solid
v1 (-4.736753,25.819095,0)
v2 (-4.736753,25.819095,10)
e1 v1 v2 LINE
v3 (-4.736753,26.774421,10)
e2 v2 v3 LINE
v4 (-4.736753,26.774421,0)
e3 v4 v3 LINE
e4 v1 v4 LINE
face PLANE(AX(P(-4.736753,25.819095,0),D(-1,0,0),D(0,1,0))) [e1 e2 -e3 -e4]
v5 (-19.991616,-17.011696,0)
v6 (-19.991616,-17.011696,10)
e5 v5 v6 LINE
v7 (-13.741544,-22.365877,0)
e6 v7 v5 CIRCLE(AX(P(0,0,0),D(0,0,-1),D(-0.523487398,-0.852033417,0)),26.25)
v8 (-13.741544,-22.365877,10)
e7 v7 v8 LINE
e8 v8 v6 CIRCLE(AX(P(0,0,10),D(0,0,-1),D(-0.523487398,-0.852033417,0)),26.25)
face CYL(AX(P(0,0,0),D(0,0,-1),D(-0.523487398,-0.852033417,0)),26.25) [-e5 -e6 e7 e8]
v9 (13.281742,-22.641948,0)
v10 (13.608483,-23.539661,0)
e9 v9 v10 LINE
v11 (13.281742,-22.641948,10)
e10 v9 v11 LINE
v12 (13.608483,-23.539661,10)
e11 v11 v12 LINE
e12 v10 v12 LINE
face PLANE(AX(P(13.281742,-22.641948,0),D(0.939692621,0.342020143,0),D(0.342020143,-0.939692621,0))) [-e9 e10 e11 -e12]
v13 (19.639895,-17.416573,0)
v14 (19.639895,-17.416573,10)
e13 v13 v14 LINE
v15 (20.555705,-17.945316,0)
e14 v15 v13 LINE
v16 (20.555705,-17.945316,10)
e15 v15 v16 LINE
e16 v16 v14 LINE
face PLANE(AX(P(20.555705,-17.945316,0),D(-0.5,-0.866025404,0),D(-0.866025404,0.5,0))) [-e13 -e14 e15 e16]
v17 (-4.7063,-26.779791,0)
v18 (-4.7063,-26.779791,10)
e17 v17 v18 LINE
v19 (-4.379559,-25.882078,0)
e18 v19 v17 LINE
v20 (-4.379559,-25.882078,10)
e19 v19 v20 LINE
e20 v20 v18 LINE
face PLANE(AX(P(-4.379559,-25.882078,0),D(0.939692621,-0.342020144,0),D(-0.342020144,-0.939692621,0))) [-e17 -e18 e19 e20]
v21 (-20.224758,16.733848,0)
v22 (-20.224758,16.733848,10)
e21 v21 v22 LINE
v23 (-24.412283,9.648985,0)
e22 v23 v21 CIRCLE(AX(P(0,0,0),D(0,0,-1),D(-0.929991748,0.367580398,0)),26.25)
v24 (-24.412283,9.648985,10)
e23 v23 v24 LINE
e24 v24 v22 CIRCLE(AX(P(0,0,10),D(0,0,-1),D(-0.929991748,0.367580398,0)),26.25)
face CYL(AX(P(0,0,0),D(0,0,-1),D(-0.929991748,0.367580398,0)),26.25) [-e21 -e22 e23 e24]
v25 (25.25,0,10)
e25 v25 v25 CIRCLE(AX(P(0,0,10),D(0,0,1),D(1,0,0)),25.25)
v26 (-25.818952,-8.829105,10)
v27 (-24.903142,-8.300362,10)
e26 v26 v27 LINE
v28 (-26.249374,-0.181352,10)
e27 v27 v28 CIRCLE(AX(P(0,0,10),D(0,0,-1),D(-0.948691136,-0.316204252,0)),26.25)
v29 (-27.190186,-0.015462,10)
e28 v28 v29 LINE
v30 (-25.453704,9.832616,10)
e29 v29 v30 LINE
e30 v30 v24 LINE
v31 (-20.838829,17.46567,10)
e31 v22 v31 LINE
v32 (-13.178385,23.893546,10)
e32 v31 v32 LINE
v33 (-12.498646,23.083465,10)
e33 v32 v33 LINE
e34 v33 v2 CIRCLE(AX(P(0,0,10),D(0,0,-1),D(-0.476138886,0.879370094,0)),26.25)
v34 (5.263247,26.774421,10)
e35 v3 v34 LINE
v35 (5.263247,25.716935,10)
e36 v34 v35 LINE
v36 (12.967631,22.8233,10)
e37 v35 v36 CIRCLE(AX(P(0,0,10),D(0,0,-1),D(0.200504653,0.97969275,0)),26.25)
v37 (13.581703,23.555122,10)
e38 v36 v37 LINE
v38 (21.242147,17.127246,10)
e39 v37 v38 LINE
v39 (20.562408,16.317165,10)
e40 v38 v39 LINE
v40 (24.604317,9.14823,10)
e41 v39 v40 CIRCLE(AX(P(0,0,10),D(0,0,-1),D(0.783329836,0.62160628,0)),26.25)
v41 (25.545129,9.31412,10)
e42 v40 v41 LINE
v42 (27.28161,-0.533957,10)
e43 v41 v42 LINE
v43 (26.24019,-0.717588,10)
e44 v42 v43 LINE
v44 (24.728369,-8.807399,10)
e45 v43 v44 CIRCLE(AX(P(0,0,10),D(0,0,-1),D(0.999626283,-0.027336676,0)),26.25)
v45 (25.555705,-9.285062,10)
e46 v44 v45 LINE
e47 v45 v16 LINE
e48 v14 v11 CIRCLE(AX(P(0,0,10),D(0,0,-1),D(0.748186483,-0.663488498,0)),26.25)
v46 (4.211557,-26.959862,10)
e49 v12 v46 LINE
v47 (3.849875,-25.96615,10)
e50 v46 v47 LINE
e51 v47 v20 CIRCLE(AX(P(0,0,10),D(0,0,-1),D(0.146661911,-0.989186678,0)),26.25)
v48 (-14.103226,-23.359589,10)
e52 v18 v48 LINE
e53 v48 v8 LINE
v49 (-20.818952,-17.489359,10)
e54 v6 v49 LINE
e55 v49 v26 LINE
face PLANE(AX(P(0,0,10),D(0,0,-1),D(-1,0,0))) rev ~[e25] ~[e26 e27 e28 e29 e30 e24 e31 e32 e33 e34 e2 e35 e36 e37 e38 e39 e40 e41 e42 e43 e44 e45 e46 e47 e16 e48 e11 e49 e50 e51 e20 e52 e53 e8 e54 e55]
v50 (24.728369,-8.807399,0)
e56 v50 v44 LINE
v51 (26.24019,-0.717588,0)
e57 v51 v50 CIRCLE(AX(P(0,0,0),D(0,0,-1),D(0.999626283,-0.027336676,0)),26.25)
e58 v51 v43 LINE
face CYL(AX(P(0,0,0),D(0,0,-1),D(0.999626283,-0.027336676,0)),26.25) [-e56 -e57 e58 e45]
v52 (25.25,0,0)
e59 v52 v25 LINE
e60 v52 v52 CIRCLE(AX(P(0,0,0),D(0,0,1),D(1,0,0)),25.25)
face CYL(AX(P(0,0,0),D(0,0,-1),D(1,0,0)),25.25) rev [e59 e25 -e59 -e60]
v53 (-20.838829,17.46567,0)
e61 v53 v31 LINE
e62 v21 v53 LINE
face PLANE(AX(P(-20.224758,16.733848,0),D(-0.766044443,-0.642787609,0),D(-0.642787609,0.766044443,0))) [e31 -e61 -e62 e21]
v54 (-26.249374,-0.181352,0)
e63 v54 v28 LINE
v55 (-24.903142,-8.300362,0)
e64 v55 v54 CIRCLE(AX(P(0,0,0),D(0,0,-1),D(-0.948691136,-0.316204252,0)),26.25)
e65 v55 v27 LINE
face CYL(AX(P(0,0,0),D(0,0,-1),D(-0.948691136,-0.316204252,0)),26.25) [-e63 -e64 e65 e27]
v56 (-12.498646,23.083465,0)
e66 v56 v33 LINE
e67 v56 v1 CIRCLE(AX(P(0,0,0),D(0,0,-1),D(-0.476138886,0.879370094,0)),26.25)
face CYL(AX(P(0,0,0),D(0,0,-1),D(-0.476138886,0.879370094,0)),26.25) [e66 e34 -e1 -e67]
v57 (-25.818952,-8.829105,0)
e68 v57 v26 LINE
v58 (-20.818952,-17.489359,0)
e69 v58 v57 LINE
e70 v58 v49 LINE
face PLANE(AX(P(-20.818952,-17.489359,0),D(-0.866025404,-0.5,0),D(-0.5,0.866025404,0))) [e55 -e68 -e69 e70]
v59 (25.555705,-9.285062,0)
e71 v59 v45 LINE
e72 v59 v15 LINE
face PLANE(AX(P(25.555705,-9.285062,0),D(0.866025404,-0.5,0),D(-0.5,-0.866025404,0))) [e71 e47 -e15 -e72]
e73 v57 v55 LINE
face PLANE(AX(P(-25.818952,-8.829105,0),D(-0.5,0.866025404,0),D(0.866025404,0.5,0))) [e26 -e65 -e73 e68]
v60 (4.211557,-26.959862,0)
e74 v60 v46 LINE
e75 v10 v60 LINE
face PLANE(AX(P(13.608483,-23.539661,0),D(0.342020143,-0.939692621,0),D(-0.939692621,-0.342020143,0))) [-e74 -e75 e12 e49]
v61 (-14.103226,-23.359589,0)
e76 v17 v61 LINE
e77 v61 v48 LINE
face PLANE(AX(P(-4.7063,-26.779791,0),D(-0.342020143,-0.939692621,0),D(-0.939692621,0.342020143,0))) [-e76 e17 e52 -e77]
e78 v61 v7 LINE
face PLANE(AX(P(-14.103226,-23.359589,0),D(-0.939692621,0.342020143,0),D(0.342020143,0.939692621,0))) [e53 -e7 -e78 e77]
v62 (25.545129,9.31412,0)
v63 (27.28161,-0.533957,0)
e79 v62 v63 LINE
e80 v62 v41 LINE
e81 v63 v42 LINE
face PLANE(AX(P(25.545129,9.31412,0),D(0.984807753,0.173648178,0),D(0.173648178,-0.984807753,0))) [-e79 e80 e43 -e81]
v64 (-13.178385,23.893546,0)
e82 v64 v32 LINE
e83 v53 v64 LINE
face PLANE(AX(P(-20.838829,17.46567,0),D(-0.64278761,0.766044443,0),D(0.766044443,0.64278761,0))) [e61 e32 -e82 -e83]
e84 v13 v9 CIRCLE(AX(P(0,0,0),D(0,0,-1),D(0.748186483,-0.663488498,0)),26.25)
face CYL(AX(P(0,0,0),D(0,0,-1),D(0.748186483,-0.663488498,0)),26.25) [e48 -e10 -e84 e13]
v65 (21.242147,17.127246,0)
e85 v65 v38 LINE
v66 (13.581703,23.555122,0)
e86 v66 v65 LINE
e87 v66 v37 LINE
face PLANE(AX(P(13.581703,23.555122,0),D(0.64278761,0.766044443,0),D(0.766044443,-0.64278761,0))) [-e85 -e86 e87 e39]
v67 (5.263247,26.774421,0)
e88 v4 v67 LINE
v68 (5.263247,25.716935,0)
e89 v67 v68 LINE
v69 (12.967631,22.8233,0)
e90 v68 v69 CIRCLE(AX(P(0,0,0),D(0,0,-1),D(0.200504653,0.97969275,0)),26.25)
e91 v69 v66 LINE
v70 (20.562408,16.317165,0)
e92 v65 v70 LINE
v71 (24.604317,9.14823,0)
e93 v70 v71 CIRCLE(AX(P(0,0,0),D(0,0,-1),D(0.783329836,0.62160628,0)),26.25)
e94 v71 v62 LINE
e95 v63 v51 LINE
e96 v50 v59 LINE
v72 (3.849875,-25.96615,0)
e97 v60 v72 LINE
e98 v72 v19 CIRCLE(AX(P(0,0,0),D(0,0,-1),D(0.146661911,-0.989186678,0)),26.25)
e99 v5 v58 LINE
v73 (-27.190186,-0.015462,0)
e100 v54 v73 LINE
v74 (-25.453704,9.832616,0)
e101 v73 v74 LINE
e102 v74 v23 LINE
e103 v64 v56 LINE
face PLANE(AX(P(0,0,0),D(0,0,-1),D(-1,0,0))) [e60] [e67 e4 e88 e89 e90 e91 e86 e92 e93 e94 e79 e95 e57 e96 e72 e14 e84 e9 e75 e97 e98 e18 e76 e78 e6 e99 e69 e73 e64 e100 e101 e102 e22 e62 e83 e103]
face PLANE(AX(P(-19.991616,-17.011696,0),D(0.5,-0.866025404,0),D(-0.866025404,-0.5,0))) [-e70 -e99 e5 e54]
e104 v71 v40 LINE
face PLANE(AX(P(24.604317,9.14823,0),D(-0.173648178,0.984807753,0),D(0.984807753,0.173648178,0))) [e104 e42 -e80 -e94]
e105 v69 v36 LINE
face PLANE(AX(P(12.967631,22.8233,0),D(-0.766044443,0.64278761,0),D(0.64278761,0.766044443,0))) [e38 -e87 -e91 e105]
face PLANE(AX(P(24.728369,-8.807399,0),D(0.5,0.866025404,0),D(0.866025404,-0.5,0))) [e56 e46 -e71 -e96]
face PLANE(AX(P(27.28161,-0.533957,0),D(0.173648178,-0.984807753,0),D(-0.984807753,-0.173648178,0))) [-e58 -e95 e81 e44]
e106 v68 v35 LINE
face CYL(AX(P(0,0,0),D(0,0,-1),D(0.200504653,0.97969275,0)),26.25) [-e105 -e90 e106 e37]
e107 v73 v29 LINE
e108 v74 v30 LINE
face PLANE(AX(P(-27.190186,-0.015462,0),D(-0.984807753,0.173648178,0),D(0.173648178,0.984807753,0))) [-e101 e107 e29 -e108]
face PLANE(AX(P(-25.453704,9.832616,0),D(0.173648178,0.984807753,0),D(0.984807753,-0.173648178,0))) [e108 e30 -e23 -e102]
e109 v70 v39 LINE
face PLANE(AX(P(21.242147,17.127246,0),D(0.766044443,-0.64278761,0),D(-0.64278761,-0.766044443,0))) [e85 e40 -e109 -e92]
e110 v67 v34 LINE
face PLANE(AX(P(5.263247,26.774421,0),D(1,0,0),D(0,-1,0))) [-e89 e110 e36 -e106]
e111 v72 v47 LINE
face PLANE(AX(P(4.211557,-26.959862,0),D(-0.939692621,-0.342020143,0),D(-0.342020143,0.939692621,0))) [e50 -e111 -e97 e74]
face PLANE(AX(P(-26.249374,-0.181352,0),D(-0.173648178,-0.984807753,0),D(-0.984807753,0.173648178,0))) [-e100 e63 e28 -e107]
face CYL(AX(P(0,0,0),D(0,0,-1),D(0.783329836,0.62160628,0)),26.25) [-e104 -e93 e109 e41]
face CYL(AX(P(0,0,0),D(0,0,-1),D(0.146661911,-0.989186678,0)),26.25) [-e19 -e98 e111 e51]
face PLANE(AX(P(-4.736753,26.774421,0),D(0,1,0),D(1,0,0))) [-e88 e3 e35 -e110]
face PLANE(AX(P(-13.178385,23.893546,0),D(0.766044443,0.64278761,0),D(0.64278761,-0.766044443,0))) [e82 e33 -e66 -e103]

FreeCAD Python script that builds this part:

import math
import FreeCAD as App
import Part
import Sketcher

V = App.Vector
Q = App.Units.Quantity

doc = App.newDocument("Part")
body = doc.addObject("PartDesign::Body", "Body")

sketch1 = body.newObject("Sketcher::SketchObject", "Sketch")
sketch1.AttachmentSupport = (doc.getObject("XY_Plane"), [""])
sketch1.MapMode = "FlatFace"
sketch1.addGeometry([
    Part.LineSegment(V(13.6, 23.6, 0), V(13, 22.8, 0)),
    Part.ArcOfCircle(Part.Circle(V(0, 0, 0), V(0, 0, 1), 26.3), math.radians(60.4), math.radians(78.43)),
    Part.LineSegment(V(5.3, 25.7, 0), V(5.3, 26.8, 0)),
    Part.LineSegment(V(5.3, 26.8, 0), V(-4.7, 26.8, 0)),
    Part.LineSegment(V(-4.7, 26.8, 0), V(-4.7, 25.8, 0)),
    Part.ArcOfCircle(Part.Circle(V(0, 0, 0), V(0, 0, 1), 26.2), math.radians(100.4), math.radians(118.43)),
    Part.LineSegment(V(-12.5, 23.1, 0), V(-13.2, 23.9, 0)),
    Part.LineSegment(V(-13.2, 23.9, 0), V(-20.8, 17.5, 0)),
    Part.LineSegment(V(-20.8, 17.5, 0), V(-20.2, 16.7, 0)),
    Part.ArcOfCircle(Part.Circle(V(0, 0, 0), V(0, 0, 1), 26.3), math.radians(140.4), math.radians(158.43)),
    Part.LineSegment(V(-24.4, 9.6, 0), V(-25.5, 9.8, 0)),
    Part.LineSegment(V(-25.5, 9.8, 0), V(-27.2, 0, 0)),
    Part.LineSegment(V(-27.2, 0, 0), V(-26.2, -0.2, 0)),
    Part.ArcOfCircle(Part.Circle(V(0, 0, 0), V(0, 0, 1), 26.2), math.radians(-179.6), math.radians(-161.57)),
    Part.LineSegment(V(-24.9, -8.3, 0), V(-25.8, -8.8, 0)),
    Part.LineSegment(V(-25.8, -8.8, 0), V(-20.8, -17.5, 0)),
    Part.LineSegment(V(-20.8, -17.5, 0), V(-20, -17, 0)),
    Part.ArcOfCircle(Part.Circle(V(0, 0, 0), V(0, 0, 1), 26.2), math.radians(-139.6), math.radians(-121.57)),
    Part.LineSegment(V(-13.7, -22.4, 0), V(-14.1, -23.4, 0)),
    Part.LineSegment(V(-14.1, -23.4, 0), V(-4.7, -26.8, 0)),
    Part.LineSegment(V(-4.7, -26.8, 0), V(-4.4, -25.9, 0)),
    Part.ArcOfCircle(Part.Circle(V(0, 0, 0), V(0, 0, 1), 26.3), math.radians(-99.6), math.radians(-81.57)),
    Part.LineSegment(V(3.8, -26, 0), V(4.2, -27, 0)),
    Part.LineSegment(V(4.2, -27, 0), V(13.6, -23.5, 0)),
    Part.LineSegment(V(13.6, -23.5, 0), V(13.3, -22.6, 0)),
    Part.ArcOfCircle(Part.Circle(V(0, 0, 0), V(0, 0, 1), 26.2), math.radians(-59.6), math.radians(-41.57)),
    Part.LineSegment(V(19.6, -17.4, 0), V(20.6, -17.9, 0)),
    Part.LineSegment(V(20.6, -17.9, 0), V(25.6, -9.3, 0)),
    Part.LineSegment(V(25.6, -9.3, 0), V(24.7, -8.8, 0)),
    Part.ArcOfCircle(Part.Circle(V(0, 0, 0), V(0, 0, 1), 26.2), math.radians(-19.6), math.radians(-1.57)),
    Part.LineSegment(V(26.2, -0.7, 0), V(27.3, -0.5, 0)),
    Part.LineSegment(V(27.3, -0.5, 0), V(25.5, 9.3, 0)),
    Part.LineSegment(V(25.5, 9.3, 0), V(24.6, 9.1, 0)),
    Part.ArcOfCircle(Part.Circle(V(0, 0, 0), V(0, 0, 1), 26.2), math.radians(20.4), math.radians(38.43)),
    Part.LineSegment(V(20.6, 16.3, 0), V(21.2, 17.1, 0)),
    Part.LineSegment(V(21.2, 17.1, 0), V(13.6, 23.6, 0)),
    Part.Circle(V(0, 0, 0), V(0, 0, 1), 25.2),
], False)
sketch1.addConstraint([
    Sketcher.Constraint("Coincident", 0, 2, 1, 1),
    Sketcher.Constraint("Coincident", 1, 2, 2, 1),
    Sketcher.Constraint("Coincident", 2, 2, 3, 1),
    Sketcher.Constraint("Coincident", 3, 2, 4, 1),
    Sketcher.Constraint("Coincident", 4, 2, 5, 1),
    Sketcher.Constraint("Coincident", 5, 2, 6, 1),
    Sketcher.Constraint("Coincident", 6, 2, 7, 1),
    Sketcher.Constraint("Coincident", 7, 2, 8, 1),
    Sketcher.Constraint("Coincident", 8, 2, 9, 1),
    Sketcher.Constraint("Coincident", 9, 2, 10, 1),
    Sketcher.Constraint("Coincident", 10, 2, 11, 1),
    Sketcher.Constraint("Coincident", 11, 2, 12, 1),
    Sketcher.Constraint("Coincident", 12, 2, 13, 1),
    Sketcher.Constraint("Coincident", 13, 2, 14, 1),
    Sketcher.Constraint("Coincident", 14, 2, 15, 1),
    Sketcher.Constraint("Coincident", 15, 2, 16, 1),
    Sketcher.Constraint("Coincident", 16, 2, 17, 1),
    Sketcher.Constraint("Coincident", 17, 2, 18, 1),
    Sketcher.Constraint("Coincident", 18, 2, 19, 1),
    Sketcher.Constraint("Coincident", 19, 2, 20, 1),
    Sketcher.Constraint("Coincident", 20, 2, 21, 1),
    Sketcher.Constraint("Coincident", 21, 2, 22, 1),
    Sketcher.Constraint("Coincident", 22, 2, 23, 1),
    Sketcher.Constraint("Coincident", 23, 2, 24, 1),
    Sketcher.Constraint("Coincident", 24, 2, 25, 1),
    Sketcher.Constraint("Coincident", 25, 2, 26, 1),
    Sketcher.Constraint("Coincident", 26, 2, 27, 1),
    Sketcher.Constraint("Coincident", 27, 2, 28, 1),
    Sketcher.Constraint("Coincident", 28, 2, 29, 1),
    Sketcher.Constraint("Coincident", 29, 2, 30, 1),
    Sketcher.Constraint("Coincident", 30, 2, 31, 1),
    Sketcher.Constraint("Coincident", 31, 2, 32, 1),
    Sketcher.Constraint("Coincident", 32, 2, 33, 1),
    Sketcher.Constraint("Coincident", 33, 2, 34, 1),
    Sketcher.Constraint("Coincident", 34, 2, 35, 1),
    Sketcher.Constraint("Coincident", 35, 2, 0, 1),
    Sketcher.Constraint("Vertical", 2),
    Sketcher.Constraint("Horizontal", 3),
    Sketcher.Constraint("Vertical", 4),
    Sketcher.Constraint("Coincident", 1, 3, -1, 1),
    Sketcher.Constraint("Coincident", 5, 3, -1, 1),
    Sketcher.Constraint("Coincident", 9, 3, -1, 1),
    Sketcher.Constraint("Coincident", 13, 3, -1, 1),
    Sketcher.Constraint("Coincident", 17, 3, -1, 1),
    Sketcher.Constraint("Coincident", 21, 3, -1, 1),
    Sketcher.Constraint("Coincident", 25, 3, -1, 1),
    Sketcher.Constraint("Coincident", 29, 3, -1, 1),
    Sketcher.Constraint("Coincident", 33, 3, -1, 1),
    Sketcher.Constraint("Coincident", 36, 3, -1, 1),
    Sketcher.Constraint("Equal", 1, 5),
    Sketcher.Constraint("Equal", 5, 9),
    Sketcher.Constraint("Equal", 9, 13),
    Sketcher.Constraint("Equal", 13, 17),
    Sketcher.Constraint("Equal", 17, 21),
    Sketcher.Constraint("Equal", 21, 25),
    Sketcher.Constraint("Equal", 25, 29),
    Sketcher.Constraint("Equal", 29, 33),
    Sketcher.Constraint("Perpendicular", 6, 7),
    Sketcher.Constraint("Perpendicular", 7, 8),
    Sketcher.Constraint("Perpendicular", 10, 11),
    Sketcher.Constraint("Perpendicular", 11, 12),
    Sketcher.Constraint("Perpendicular", 14, 15),
    Sketcher.Constraint("Perpendicular", 15, 16),
    Sketcher.Constraint("Perpendicular", 18, 19),
    Sketcher.Constraint("Perpendicular", 19, 20),
    Sketcher.Constraint("Perpendicular", 22, 23),
    Sketcher.Constraint("Perpendicular", 23, 24),
    Sketcher.Constraint("Perpendicular", 26, 27),
    Sketcher.Constraint("Perpendicular", 27, 28),
    Sketcher.Constraint("Perpendicular", 30, 31),
    Sketcher.Constraint("Perpendicular", 31, 32),
    Sketcher.Constraint("Parallel", 0, 34),
    Sketcher.Constraint("Perpendicular", 34, 35),
    Sketcher.Constraint("Equal", 0, 8),
    Sketcher.Constraint("Equal", 6, 10),
    Sketcher.Constraint("Equal", 7, 11),
    Sketcher.Constraint("Equal", 8, 12),
    Sketcher.Constraint("Equal", 10, 14),
    Sketcher.Constraint("Equal", 11, 15),
    Sketcher.Constraint("Equal", 12, 16),
    Sketcher.Constraint("Equal", 14, 18),
    Sketcher.Constraint("Equal", 15, 19),
    Sketcher.Constraint("Equal", 16, 20),
    Sketcher.Constraint("Equal", 18, 22),
    Sketcher.Constraint("Equal", 19, 23),
    Sketcher.Constraint("Equal", 20, 24),
    Sketcher.Constraint("Equal", 22, 26),
    Sketcher.Constraint("Equal", 23, 27),
    Sketcher.Constraint("Equal", 24, 28),
    Sketcher.Constraint("Equal", 26, 30),
    Sketcher.Constraint("Equal", 27, 31),
    Sketcher.Constraint("Equal", 28, 32),
    Sketcher.Constraint("Equal", 30, 34),
    Sketcher.Constraint("Equal", 31, 35),
    Sketcher.Constraint("Diameter", 36, 50.5),
    Sketcher.Constraint("DistanceX", 3, 2, 3, 1, 10.0),
    Sketcher.Constraint("Angle", 0, Q("-130 deg")),
    Sketcher.Constraint("Angle", 6, Q("130 deg")),
    Sketcher.Constraint("Angle", 10, Q("170 deg")),
    Sketcher.Constraint("Angle", 14, Q("-150 deg")),
    Sketcher.Constraint("Angle", 18, Q("-110 deg")),
    Sketcher.Constraint("Angle", 22, Q("-70 deg")),
    Sketcher.Constraint("Angle", 26, Q("-30 deg")),
    Sketcher.Constraint("Angle", 30, Q("10 deg")),
    Sketcher.Constraint("Radius", 1, 26.25),
    Sketcher.Constraint("Distance", 7, 10.0),
    Sketcher.Constraint("DistanceY", -1, 1, 0, 2, 22.8233),
    Sketcher.Constraint("DistanceX", 19, 2, -1, 1, 4.7063),
    Sketcher.Constraint("DistanceX", 1, 2, 34, 2, 15.9789),
    Sketcher.Constraint("DistanceY", 35, 2, 2, 2, 3.219298),
])
pad1 = body.newObject("PartDesign::Pad", "Pad")
pad1.Profile = sketch1
pad1.Length = 10

doc.recompute()
